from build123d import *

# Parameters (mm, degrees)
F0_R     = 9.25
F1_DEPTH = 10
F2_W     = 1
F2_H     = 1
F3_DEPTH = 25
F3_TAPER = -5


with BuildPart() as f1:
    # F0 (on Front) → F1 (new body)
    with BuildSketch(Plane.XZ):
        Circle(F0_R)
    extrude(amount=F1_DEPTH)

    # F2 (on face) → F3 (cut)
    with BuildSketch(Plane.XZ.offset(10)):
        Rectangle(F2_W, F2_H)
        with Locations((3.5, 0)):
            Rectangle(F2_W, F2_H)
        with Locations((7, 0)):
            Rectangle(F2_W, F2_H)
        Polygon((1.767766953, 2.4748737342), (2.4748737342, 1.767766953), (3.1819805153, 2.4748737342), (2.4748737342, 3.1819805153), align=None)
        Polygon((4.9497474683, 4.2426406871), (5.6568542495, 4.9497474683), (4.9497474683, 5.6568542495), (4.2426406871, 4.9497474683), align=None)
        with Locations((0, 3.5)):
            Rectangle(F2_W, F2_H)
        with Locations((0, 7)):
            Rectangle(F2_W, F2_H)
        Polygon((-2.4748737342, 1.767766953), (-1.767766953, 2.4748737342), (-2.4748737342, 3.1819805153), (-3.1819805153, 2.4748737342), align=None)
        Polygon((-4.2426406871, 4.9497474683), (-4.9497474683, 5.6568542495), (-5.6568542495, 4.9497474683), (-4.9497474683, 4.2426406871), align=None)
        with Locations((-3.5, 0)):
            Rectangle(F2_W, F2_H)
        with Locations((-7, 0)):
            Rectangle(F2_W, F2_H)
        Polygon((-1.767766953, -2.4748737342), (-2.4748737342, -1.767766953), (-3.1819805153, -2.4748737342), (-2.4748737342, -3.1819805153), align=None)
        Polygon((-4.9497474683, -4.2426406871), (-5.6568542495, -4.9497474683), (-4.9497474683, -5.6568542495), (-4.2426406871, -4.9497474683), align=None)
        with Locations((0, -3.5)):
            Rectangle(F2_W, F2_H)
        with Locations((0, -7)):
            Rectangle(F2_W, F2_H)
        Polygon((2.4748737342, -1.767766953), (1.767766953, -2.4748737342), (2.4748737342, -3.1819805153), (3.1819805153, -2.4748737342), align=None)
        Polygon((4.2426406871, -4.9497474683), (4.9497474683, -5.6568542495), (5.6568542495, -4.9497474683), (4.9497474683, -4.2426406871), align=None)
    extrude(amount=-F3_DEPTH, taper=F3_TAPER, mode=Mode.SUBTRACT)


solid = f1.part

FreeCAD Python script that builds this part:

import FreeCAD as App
import Part
import Sketcher

doc = App.newDocument("Part")
params = doc.addObject("Spreadsheet::Sheet", "Params")
for row, (alias, value) in enumerate([
    ("sketch1_diameter", "18.5 mm"),
    ("pad1_length", "10 mm"),
    ("sketch2_width", "1 mm"),
    ("sketch2_length", "1 mm"),
    ("pocket1_length", "25 mm"),
    ("pocket1_taper", "5 deg"),
], start=1):
    params.set(f"A{row}", alias)
    params.set(f"B{row}", "=" + value)
    params.setAlias(f"B{row}", alias)

body = doc.addObject("PartDesign::Body", "Body")

sketch1 = body.newObject("Sketcher::SketchObject", "Sketch")
sketch1.AttachmentSupport = (doc.getObject("XZ_Plane"), [""])
sketch1.MapMode = "FlatFace"
sketch1.addGeometry(Part.Circle(App.Vector(0, 0, 0), App.Vector(0, 0, 1), 9), False)
sketch1.addConstraint([
    Sketcher.Constraint("Coincident", 0, 3, -1, 1),
    Sketcher.Constraint("Diameter", 0, 18.5),
])
sketch1.setExpression("Constraints[1]", "Params.sketch1_diameter")
pad1 = body.newObject("PartDesign::Pad", "Pad")
pad1.Profile = sketch1
pad1.setExpression("Length", "Params.pad1_length")

sketch2 = body.newObject("Sketcher::SketchObject", "Sketch001")
sketch2.AttachmentSupport = (doc.getObject("XZ_Plane"), [""])
sketch2.MapMode = "FlatFace"
sketch2.AttachmentOffset = App.Placement(App.Vector(0, 0, 10), App.Rotation())
sketch2.addGeometry([
    Part.LineSegment(App.Vector(-0.5, 0.5, 0), App.Vector(-0.5, -0.5, 0)),
    Part.LineSegment(App.Vector(-0.5, -0.5, 0), App.Vector(0.5, -0.5, 0)),
    Part.LineSegment(App.Vector(0.5, -0.5, 0), App.Vector(0.5, 0.5, 0)),
    Part.LineSegment(App.Vector(0.5, 0.5, 0), App.Vector(-0.5, 0.5, 0)),
    Part.LineSegment(App.Vector(3, 0.5, 0), App.Vector(3, -0.5, 0)),
    Part.LineSegment(App.Vector(3, -0.5, 0), App.Vector(4, -0.5, 0)),
    Part.LineSegment(App.Vector(4, -0.5, 0), App.Vector(4, 0.5, 0)),
    Part.LineSegment(App.Vector(4, 0.5, 0), App.Vector(3, 0.5, 0)),
    Part.LineSegment(App.Vector(6.5, 0.5, 0), App.Vector(6.5, -0.5, 0)),
    Part.LineSegment(App.Vector(6.5, -0.5, 0), App.Vector(7.5, -0.5, 0)),
    Part.LineSegment(App.Vector(7.5, -0.5, 0), App.Vector(7.5, 0.5, 0)),
    Part.LineSegment(App.Vector(7.5, 0.5, 0), App.Vector(6.5, 0.5, 0)),
    Part.LineSegment(App.Vector(1.8, 2.5, 0), App.Vector(2.5, 1.8, 0)),
    Part.LineSegment(App.Vector(2.5, 1.8, 0), App.Vector(3.2, 2.5, 0)),
    Part.LineSegment(App.Vector(3.2, 2.5, 0), App.Vector(2.5, 3.2, 0)),
    Part.LineSegment(App.Vector(2.5, 3.2, 0), App.Vector(1.8, 2.5, 0)),
    Part.LineSegment(App.Vector(4.9, 4.2, 0), App.Vector(5.7, 4.9, 0)),
    Part.LineSegment(App.Vector(5.7, 4.9, 0), App.Vector(4.9, 5.7, 0)),
    Part.LineSegment(App.Vector(4.9, 5.7, 0), App.Vector(4.2, 4.9, 0)),
    Part.LineSegment(App.Vector(4.2, 4.9, 0), App.Vector(4.9, 4.2, 0)),
    Part.LineSegment(App.Vector(-0.5, 4, 0), App.Vector(-0.5, 3, 0)),
    Part.LineSegment(App.Vector(-0.5, 3, 0), App.Vector(0.5, 3, 0)),
    Part.LineSegment(App.Vector(0.5, 3, 0), App.Vector(0.5, 4, 0)),
    Part.LineSegment(App.Vector(0.5, 4, 0), App.Vector(-0.5, 4, 0)),
    Part.LineSegment(App.Vector(-0.5, 7.5, 0), App.Vector(-0.5, 6.5, 0)),
    Part.LineSegment(App.Vector(-0.5, 6.5, 0), App.Vector(0.5, 6.5, 0)),
    Part.LineSegment(App.Vector(0.5, 6.5, 0), App.Vector(0.5, 7.5, 0)),
    Part.LineSegment(App.Vector(0.5, 7.5, 0), App.Vector(-0.5, 7.5, 0)),
    Part.LineSegment(App.Vector(-2.5, 1.8, 0), App.Vector(-1.8, 2.5, 0)),
    Part.LineSegment(App.Vector(-1.8, 2.5, 0), App.Vector(-2.5, 3.2, 0)),
    Part.LineSegment(App.Vector(-2.5, 3.2, 0), App.Vector(-3.2, 2.5, 0)),
    Part.LineSegment(App.Vector(-3.2, 2.5, 0), App.Vector(-2.5, 1.8, 0)),
    Part.LineSegment(App.Vector(-4.2, 4.9, 0), App.Vector(-4.9, 5.7, 0)),
    Part.LineSegment(App.Vector(-4.9, 5.7, 0), App.Vector(-5.7, 4.9, 0)),
    Part.LineSegment(App.Vector(-5.7, 4.9, 0), App.Vector(-4.9, 4.2, 0)),
    Part.LineSegment(App.Vector(-4.9, 4.2, 0), App.Vector(-4.2, 4.9, 0)),
    Part.LineSegment(App.Vector(-4, 0.5, 0), App.Vector(-4, -0.5, 0)),
    Part.LineSegment(App.Vector(-4, -0.5, 0), App.Vector(-3, -0.5, 0)),
    Part.LineSegment(App.Vector(-3, -0.5, 0), App.Vector(-3, 0.5, 0)),
    Part.LineSegment(App.Vector(-3, 0.5, 0), App.Vector(-4, 0.5, 0)),
    Part.LineSegment(App.Vector(-7.5, 0.5, 0), App.Vector(-7.5, -0.5, 0)),
    Part.LineSegment(App.Vector(-7.5, -0.5, 0), App.Vector(-6.5, -0.5, 0)),
    Part.LineSegment(App.Vector(-6.5, -0.5, 0), App.Vector(-6.5, 0.5, 0)),
    Part.LineSegment(App.Vector(-6.5, 0.5, 0), App.Vector(-7.5, 0.5, 0)),
    Part.LineSegment(App.Vector(-1.8, -2.5, 0), App.Vector(-2.5, -1.8, 0)),
    Part.LineSegment(App.Vector(-2.5, -1.8, 0), App.Vector(-3.2, -2.5, 0)),
    Part.LineSegment(App.Vector(-3.2, -2.5, 0), App.Vector(-2.5, -3.2, 0)),
    Part.LineSegment(App.Vector(-2.5, -3.2, 0), App.Vector(-1.8, -2.5, 0)),
    Part.LineSegment(App.Vector(-4.9, -4.2, 0), App.Vector(-5.7, -4.9, 0)),
    Part.LineSegment(App.Vector(-5.7, -4.9, 0), App.Vector(-4.9, -5.7, 0)),
    Part.LineSegment(App.Vector(-4.9, -5.7, 0), App.Vector(-4.2, -4.9, 0)),
    Part.LineSegment(App.Vector(-4.2, -4.9, 0), App.Vector(-4.9, -4.2, 0)),
    Part.LineSegment(App.Vector(-0.5, -3, 0), App.Vector(-0.5, -4, 0)),
    Part.LineSegment(App.Vector(-0.5, -4, 0), App.Vector(0.5, -4, 0)),
    Part.LineSegment(App.Vector(0.5, -4, 0), App.Vector(0.5, -3, 0)),
    Part.LineSegment(App.Vector(0.5, -3, 0), App.Vector(-0.5, -3, 0)),
    Part.LineSegment(App.Vector(-0.5, -6.5, 0), App.Vector(-0.5, -7.5, 0)),
    Part.LineSegment(App.Vector(-0.5, -7.5, 0), App.Vector(0.5, -7.5, 0)),
    Part.LineSegment(App.Vector(0.5, -7.5, 0), App.Vector(0.5, -6.5, 0)),
    Part.LineSegment(App.Vector(0.5, -6.5, 0), App.Vector(-0.5, -6.5, 0)),
    Part.LineSegment(App.Vector(2.5, -1.8, 0), App.Vector(1.8, -2.5, 0)),
    Part.LineSegment(App.Vector(1.8, -2.5, 0), App.Vector(2.5, -3.2, 0)),
    Part.LineSegment(App.Vector(2.5, -3.2, 0), App.Vector(3.2, -2.5, 0)),
    Part.LineSegment(App.Vector(3.2, -2.5, 0), App.Vector(2.5, -1.8, 0)),
    Part.LineSegment(App.Vector(4.2, -4.9, 0), App.Vector(4.9, -5.7, 0)),
    Part.LineSegment(App.Vector(4.9, -5.7, 0), App.Vector(5.7, -4.9, 0)),
    Part.LineSegment(App.Vector(5.7, -4.9, 0), App.Vector(4.9, -4.2, 0)),
    Part.LineSegment(App.Vector(4.9, -4.2, 0), App.Vector(4.2, -4.9, 0)),
], False)
sketch2.addConstraint([
    Sketcher.Constraint("Coincident", 0, 2, 1, 1),
    Sketcher.Constraint("Coincident", 1, 2, 2, 1),
    Sketcher.Constraint("Coincident", 2, 2, 3, 1),
    Sketcher.Constraint("Coincident", 3, 2, 0, 1),
    Sketcher.Constraint("Coincident", 4, 2, 5, 1),
    Sketcher.Constraint("Coincident", 5, 2, 6, 1),
    Sketcher.Constraint("Coincident", 6, 2, 7, 1),
    Sketcher.Constraint("Coincident", 7, 2, 4, 1),
    Sketcher.Constraint("Coincident", 8, 2, 9, 1),
    Sketcher.Constraint("Coincident", 9, 2, 10, 1),
    Sketcher.Constraint("Coincident", 10, 2, 11, 1),
    Sketcher.Constraint("Coincident", 11, 2, 8, 1),
    Sketcher.Constraint("Coincident", 12, 2, 13, 1),
    Sketcher.Constraint("Coincident", 13, 2, 14, 1),
    Sketcher.Constraint("Coincident", 14, 2, 15, 1),
    Sketcher.Constraint("Coincident", 15, 2, 12, 1),
    Sketcher.Constraint("Coincident", 16, 2, 17, 1),
    Sketcher.Constraint("Coincident", 17, 2, 18, 1),
    Sketcher.Constraint("Coincident", 18, 2, 19, 1),
    Sketcher.Constraint("Coincident", 19, 2, 16, 1),
    Sketcher.Constraint("Coincident", 20, 2, 21, 1),
    Sketcher.Constraint("Coincident", 21, 2, 22, 1),
    Sketcher.Constraint("Coincident", 22, 2, 23, 1),
    Sketcher.Constraint("Coincident", 23, 2, 20, 1),
    Sketcher.Constraint("Coincident", 24, 2, 25, 1),
    Sketcher.Constraint("Coincident", 25, 2, 26, 1),
    Sketcher.Constraint("Coincident", 26, 2, 27, 1),
    Sketcher.Constraint("Coincident", 27, 2, 24, 1),
    Sketcher.Constraint("Coincident", 28, 2, 29, 1),
    Sketcher.Constraint("Coincident", 29, 2, 30, 1),
    Sketcher.Constraint("Coincident", 30, 2, 31, 1),
    Sketcher.Constraint("Coincident", 31, 2, 28, 1),
    Sketcher.Constraint("Coincident", 32, 2, 33, 1),
    Sketcher.Constraint("Coincident", 33, 2, 34, 1),
    Sketcher.Constraint("Coincident", 34, 2, 35, 1),
    Sketcher.Constraint("Coincident", 35, 2, 32, 1),
    Sketcher.Constraint("Coincident", 36, 2, 37, 1),
    Sketcher.Constraint("Coincident", 37, 2, 38, 1),
    Sketcher.Constraint("Coincident", 38, 2, 39, 1),
    Sketcher.Constraint("Coincident", 39, 2, 36, 1),
    Sketcher.Constraint("Coincident", 40, 2, 41, 1),
    Sketcher.Constraint("Coincident", 41, 2, 42, 1),
    Sketcher.Constraint("Coincident", 42, 2, 43, 1),
    Sketcher.Constraint("Coincident", 43, 2, 40, 1),
    Sketcher.Constraint("Coincident", 44, 2, 45, 1),
    Sketcher.Constraint("Coincident", 45, 2, 46, 1),
    Sketcher.Constraint("Coincident", 46, 2, 47, 1),
    Sketcher.Constraint("Coincident", 47, 2, 44, 1),
    Sketcher.Constraint("Coincident", 48, 2, 49, 1),
    Sketcher.Constraint("Coincident", 49, 2, 50, 1),
    Sketcher.Constraint("Coincident", 50, 2, 51, 1),
    Sketcher.Constraint("Coincident", 51, 2, 48, 1),
    Sketcher.Constraint("Coincident", 52, 2, 53, 1),
    Sketcher.Constraint("Coincident", 53, 2, 54, 1),
    Sketcher.Constraint("Coincident", 54, 2, 55, 1),
    Sketcher.Constraint("Coincident", 55, 2, 52, 1),
    Sketcher.Constraint("Coincident", 56, 2, 57, 1),
    Sketcher.Constraint("Coincident", 57, 2, 58, 1),
    Sketcher.Constraint("Coincident", 58, 2, 59, 1),
    Sketcher.Constraint("Coincident", 59, 2, 56, 1),
    Sketcher.Constraint("Coincident", 60, 2, 61, 1),
    Sketcher.Constraint("Coincident", 61, 2, 62, 1),
    Sketcher.Constraint("Coincident", 62, 2, 63, 1),
    Sketcher.Constraint("Coincident", 63, 2, 60, 1),
    Sketcher.Constraint("Coincident", 64, 2, 65, 1),
    Sketcher.Constraint("Coincident", 65, 2, 66, 1),
    Sketcher.Constraint("Coincident", 66, 2, 67, 1),
    Sketcher.Constraint("Coincident", 67, 2, 64, 1),
    Sketcher.Constraint("Vertical", 0),
    Sketcher.Constraint("Horizontal", 1),
    Sketcher.Constraint("Vertical", 2),
    Sketcher.Constraint("Horizontal", 3),
    Sketcher.Constraint("Vertical", 4),
    Sketcher.Constraint("Horizontal", 5),
    Sketcher.Constraint("Vertical", 6),
    Sketcher.Constraint("Horizontal", 7),
    Sketcher.Constraint("Vertical", 8),
    Sketcher.Constraint("Horizontal", 9),
    Sketcher.Constraint("Vertical", 10),
    Sketcher.Constraint("Horizontal", 11),
    Sketcher.Constraint("Vertical", 20),
    Sketcher.Constraint("Horizontal", 21),
    Sketcher.Constraint("Vertical", 22),
    Sketcher.Constraint("Horizontal", 23),
    Sketcher.Constraint("Vertical", 24),
    Sketcher.Constraint("Horizontal", 25),
    Sketcher.Constraint("Vertical", 26),
    Sketcher.Constraint("Horizontal", 27),
    Sketcher.Constraint("Vertical", 36),
    Sketcher.Constraint("Horizontal", 37),
    Sketcher.Constraint("Vertical", 38),
    Sketcher.Constraint("Horizontal", 39),
    Sketcher.Constraint("Vertical", 40),
    Sketcher.Constraint("Horizontal", 41),
    Sketcher.Constraint("Vertical", 42),
    Sketcher.Constraint("Horizontal", 43),
    Sketcher.Constraint("Vertical", 52),
    Sketcher.Constraint("Horizontal", 53),
    Sketcher.Constraint("Vertical", 54),
    Sketcher.Constraint("Horizontal", 55),
    Sketcher.Constraint("Vertical", 56),
    Sketcher.Constraint("Horizontal", 57),
    Sketcher.Constraint("Vertical", 58),
    Sketcher.Constraint("Horizontal", 59),
    Sketcher.Constraint("Symmetric", 0, 2, 2, 2, -1, 1),
    Sketcher.Constraint("Symmetric", 6, 2, 36, 2, -1, 1),
    Sketcher.Constraint("Symmetric", 4, 2, 38, 2, -1, 1),
    Sketcher.Constraint("Symmetric", 10, 2, 40, 2, -1, 1),
    Sketcher.Constraint("Symmetric", 8, 2, 42, 2, -1, 1),
    Sketcher.Constraint("Symmetric", 12, 2, 44, 2, -1, 1),
    Sketcher.Constraint("Symmetric", 13, 2, 45, 2, -1, 1),
    Sketcher.Constraint("Symmetric", 14, 2, 46, 2, -1, 1),
    Sketcher.Constraint("Symmetric", 15, 2, 47, 2, -1, 1),
    Sketcher.Constraint("Symmetric", 16, 2, 48, 2, -1, 1),
    Sketcher.Constraint("Symmetric", 17, 2, 49, 2, -1, 1),
    Sketcher.Constraint("Symmetric", 18, 2, 50, 2, -1, 1),
    Sketcher.Constraint("Symmetric", 19, 2, 51, 2, -1, 1),
    Sketcher.Constraint("Symmetric", 22, 2, 52, 2, -1, 1),
    Sketcher.Constraint("Symmetric", 20, 2, 54, 2, -1, 1),
    Sketcher.Constraint("Symmetric", 26, 2, 56, 2, -1, 1),
    Sketcher.Constraint("Symmetric", 24, 2, 58, 2, -1, 1),
    Sketcher.Constraint("Symmetric", 28, 2, 60, 2, -1, 1),
    Sketcher.Constraint("Symmetric", 29, 2, 61, 2, -1, 1),
    Sketcher.Constraint("Symmetric", 30, 2, 62, 2, -1, 1),
    Sketcher.Constraint("Symmetric", 31, 2, 63, 2, -1, 1),
    Sketcher.Constraint("Symmetric", 32, 2, 64, 2, -1, 1),
    Sketcher.Constraint("Symmetric", 33, 2, 65, 2, -1, 1),
    Sketcher.Constraint("Symmetric", 34, 2, 66, 2, -1, 1),
    Sketcher.Constraint("Symmetric", 35, 2, 67, 2, -1, 1),
    Sketcher.Constraint("Symmetric", 15, 2, 28, 2, -2),
    Sketcher.Constraint("Symmetric", 14, 2, 29, 2, -2),
    Sketcher.Constraint("Symmetric", 13, 2, 30, 2, -2),
    Sketcher.Constraint("Symmetric", 12, 2, 31, 2, -2),
    Sketcher.Constraint("Symmetric", 17, 2, 32, 2, -2),
    Sketcher.Constraint("Symmetric", 16, 2, 33, 2, -2),
    Sketcher.Constraint("Symmetric", 19, 2, 34, 2, -2),
    Sketcher.Constraint("Symmetric", 18, 2, 35, 2, -2),
    Sketcher.Constraint("Perpendicular", 12, 13),
    Sketcher.Constraint("Perpendicular", 13, 14),
    Sketcher.Constraint("Perpendicular", 14, 15),
    Sketcher.Constraint("Parallel", 15, 16),
    Sketcher.Constraint("Perpendicular", 16, 17),
    Sketcher.Constraint("Perpendicular", 17, 18),
    Sketcher.Constraint("Perpendicular", 18, 19),
    Sketcher.Constraint("Perpendicular", 19, 28),
    Sketcher.Constraint("Horizontal", 1, 2, 4, 2),
    Sketcher.Constraint("Horizontal", 3, 2, 6, 2),
    Sketcher.Constraint("Horizontal", 5, 2, 8, 2),
    Sketcher.Constraint("Horizontal", 7, 2, 10, 2),
    Sketcher.Constraint("Horizontal", 13, 2, 15, 2),
    Sketcher.Constraint("Horizontal", 16, 2, 18, 2),
    Sketcher.Constraint("Vertical", 3, 2, 20, 2),
    Sketcher.Constraint("Vertical", 2, 2, 21, 2),
    Sketcher.Constraint("Vertical", 23, 2, 24, 2),
    Sketcher.Constraint("Vertical", 22, 2, 25, 2),
    Sketcher.Constraint("Equal", 3, 5),
    Sketcher.Constraint("Equal", 7, 9),
    Sketcher.Constraint("Equal", 59, 0),
    Sketcher.Constraint("Equal", 10, 20),
    Sketcher.Constraint("Equal", 22, 24),
    Sketcher.Constraint("Equal", 15, 16),
    Sketcher.Constraint("DistanceX", 1, 1, 1, 2, 1.0),
    Sketcher.Constraint("Distance", 12, 1.0),
    Sketcher.Constraint("DistanceX", -1, 1, 4, 2, 3.0),
    Sketcher.Constraint("DistanceY", -1, 1, 20, 2, 3.0),
    Sketcher.Constraint("DistanceX", -1, 1, 8, 2, 6.5),
    Sketcher.Constraint("DistanceY", -1, 1, 24, 2, 6.5),
    Sketcher.Constraint("DistanceX", -1, 1, 13, 2, 3.181981),
    Sketcher.Constraint("DistanceY", -1, 1, 14, 2, 3.181981),
    Sketcher.Constraint("DistanceX", -1, 1, 18, 2, 4.242641),
    Sketcher.Constraint("DistanceY", -1, 1, 19, 2, 4.242641),
])
sketch2.setExpression("Constraints[161]", "Params.sketch2_width")
sketch2.setExpression("Constraints[162]", "Params.sketch2_length")
pocket1 = body.newObject("PartDesign::Pocket", "Pocket")
pocket1.Profile = sketch2
pocket1.setExpression("Length", "Params.pocket1_length")
pocket1.setExpression("TaperAngle", "Params.pocket1_taper")

doc.recompute()
